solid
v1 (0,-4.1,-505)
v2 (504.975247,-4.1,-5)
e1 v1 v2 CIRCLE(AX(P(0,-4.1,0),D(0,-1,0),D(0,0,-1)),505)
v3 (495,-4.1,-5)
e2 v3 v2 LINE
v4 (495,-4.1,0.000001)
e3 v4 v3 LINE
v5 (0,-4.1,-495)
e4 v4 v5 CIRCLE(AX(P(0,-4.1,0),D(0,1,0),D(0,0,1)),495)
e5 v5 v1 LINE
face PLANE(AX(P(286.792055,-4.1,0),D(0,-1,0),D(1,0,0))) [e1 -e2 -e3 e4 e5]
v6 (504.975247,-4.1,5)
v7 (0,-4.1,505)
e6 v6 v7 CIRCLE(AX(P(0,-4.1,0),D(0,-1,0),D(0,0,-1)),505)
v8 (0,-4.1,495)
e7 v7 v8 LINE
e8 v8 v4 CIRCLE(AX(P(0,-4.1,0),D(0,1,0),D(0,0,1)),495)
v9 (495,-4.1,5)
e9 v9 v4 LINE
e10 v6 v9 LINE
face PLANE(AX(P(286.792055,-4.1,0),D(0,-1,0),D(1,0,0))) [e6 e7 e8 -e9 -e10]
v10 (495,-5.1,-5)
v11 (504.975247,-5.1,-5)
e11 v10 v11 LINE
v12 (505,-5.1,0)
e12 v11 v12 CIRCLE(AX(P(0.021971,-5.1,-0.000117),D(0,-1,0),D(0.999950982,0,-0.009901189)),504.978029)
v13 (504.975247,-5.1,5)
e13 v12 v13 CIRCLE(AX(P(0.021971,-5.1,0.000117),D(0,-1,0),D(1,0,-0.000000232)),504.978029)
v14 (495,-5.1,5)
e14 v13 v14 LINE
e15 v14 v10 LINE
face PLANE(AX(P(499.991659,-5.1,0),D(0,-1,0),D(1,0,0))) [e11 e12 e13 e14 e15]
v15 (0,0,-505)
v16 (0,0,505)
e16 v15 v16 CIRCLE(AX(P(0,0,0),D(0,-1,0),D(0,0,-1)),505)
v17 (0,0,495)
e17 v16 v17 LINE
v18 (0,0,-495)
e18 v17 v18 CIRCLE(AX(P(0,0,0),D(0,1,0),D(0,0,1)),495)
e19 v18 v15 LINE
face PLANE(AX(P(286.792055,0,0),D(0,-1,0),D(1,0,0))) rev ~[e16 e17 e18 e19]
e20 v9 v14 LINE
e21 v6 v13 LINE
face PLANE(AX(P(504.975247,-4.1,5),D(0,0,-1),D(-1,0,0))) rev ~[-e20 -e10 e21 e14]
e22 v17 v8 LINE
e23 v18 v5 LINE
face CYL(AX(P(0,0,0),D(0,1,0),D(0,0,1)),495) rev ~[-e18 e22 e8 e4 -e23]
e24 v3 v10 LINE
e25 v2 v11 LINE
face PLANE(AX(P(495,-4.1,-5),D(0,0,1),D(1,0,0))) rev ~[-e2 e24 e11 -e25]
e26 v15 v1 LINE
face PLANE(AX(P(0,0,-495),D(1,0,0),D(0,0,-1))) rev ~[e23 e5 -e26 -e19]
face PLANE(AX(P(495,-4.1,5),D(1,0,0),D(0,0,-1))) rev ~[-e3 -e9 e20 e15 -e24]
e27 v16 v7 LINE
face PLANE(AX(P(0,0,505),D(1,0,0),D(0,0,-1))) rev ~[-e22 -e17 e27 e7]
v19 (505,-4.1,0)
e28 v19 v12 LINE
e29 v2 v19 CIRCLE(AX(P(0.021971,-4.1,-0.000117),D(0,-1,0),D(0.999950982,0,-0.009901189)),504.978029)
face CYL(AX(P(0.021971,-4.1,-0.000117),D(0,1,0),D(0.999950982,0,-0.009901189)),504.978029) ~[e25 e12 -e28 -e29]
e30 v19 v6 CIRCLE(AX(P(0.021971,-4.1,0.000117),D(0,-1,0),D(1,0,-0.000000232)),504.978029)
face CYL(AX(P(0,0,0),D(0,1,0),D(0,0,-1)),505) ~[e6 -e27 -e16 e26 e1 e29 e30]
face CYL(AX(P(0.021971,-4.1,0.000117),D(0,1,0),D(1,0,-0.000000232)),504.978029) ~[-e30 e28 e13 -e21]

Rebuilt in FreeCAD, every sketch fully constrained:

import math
import FreeCAD as App
import Part
import Sketcher

doc = App.newDocument("Part")
body = doc.addObject("PartDesign::Body", "Body")

# Sketch on XZ plane
sketch1 = doc.addObject("Sketcher::SketchObject", "Sketch")
body.addObject(sketch1)
sketch1.AttachmentSupport = (doc.XZ_Plane, [""])
sketch1.MapMode = "FlatFace"
sketch1.addGeometry(Part.ArcOfCircle(Part.Circle(App.Vector(0, 0, 0), App.Vector(0, 0, 1), 495), math.radians(-90), math.radians(90)), False)
sketch1.addGeometry(Part.LineSegment(App.Vector(0, -495, 0), App.Vector(0, -505, 0)), False)
sketch1.addGeometry(Part.ArcOfCircle(Part.Circle(App.Vector(0, 0, 0), App.Vector(0, 0, 1), 505), math.radians(-90), math.radians(90)), False)
sketch1.addGeometry(Part.LineSegment(App.Vector(0, 505, 0), App.Vector(0, 495, 0)), False)
sketch1.addConstraint(Sketcher.Constraint("Coincident", 0, 1, 1, 1))
sketch1.addConstraint(Sketcher.Constraint("Coincident", 1, 2, 2, 1))
sketch1.addConstraint(Sketcher.Constraint("Coincident", 2, 2, 3, 1))
sketch1.addConstraint(Sketcher.Constraint("Coincident", 3, 2, 0, 2))
sketch1.addConstraint(Sketcher.Constraint("Vertical", 1))
sketch1.addConstraint(Sketcher.Constraint("Vertical", 3))
sketch1.addConstraint(Sketcher.Constraint("Coincident", 0, 3, -1, 1))
sketch1.addConstraint(Sketcher.Constraint("Coincident", 2, 3, -1, 1))
sketch1.addConstraint(Sketcher.Constraint("PointOnObject", 1, 2, -2))
sketch1.addConstraint(Sketcher.Constraint("PointOnObject", 3, 2, -2))
sketch1.addConstraint(Sketcher.Constraint("Radius", 0, 495.0))
sketch1.addConstraint(Sketcher.Constraint("Radius", 2, 505.0))
pad1 = doc.addObject("PartDesign::Pad", "Pad")
body.addObject(pad1)
pad1.Profile = sketch1
pad1.Length = 4.1

# Sketch on XZ plane
sketch2 = doc.addObject("Sketcher::SketchObject", "Sketch001")
body.addObject(sketch2)
sketch2.AttachmentSupport = (doc.XZ_Plane, [""])
sketch2.MapMode = "FlatFace"
sketch2.AttachmentOffset = App.Placement(App.Vector(0, 0, 4.1), App.Rotation())
sketch2.addGeometry(Part.LineSegment(App.Vector(505, 5, 0), App.Vector(495, 5, 0)), False)
sketch2.addGeometry(Part.LineSegment(App.Vector(495, 5, 0), App.Vector(495, -5, 0)), False)
sketch2.addGeometry(Part.LineSegment(App.Vector(495, -5, 0), App.Vector(505, -5, 0)), False)
sketch2.addGeometry(Part.ArcOfCircle(Part.Circle(App.Vector(0, 0, 0), App.Vector(0, 0, 1), 505), math.radians(-0.57), math.radians(0)), False)
sketch2.addGeometry(Part.ArcOfCircle(Part.Circle(App.Vector(0, 0, 0), App.Vector(0, 0, 1), 505), math.radians(0), math.radians(0.57)), False)
sketch2.addConstraint(Sketcher.Constraint("Coincident", 0, 2, 1, 1))
sketch2.addConstraint(Sketcher.Constraint("Coincident", 1, 2, 2, 1))
sketch2.addConstraint(Sketcher.Constraint("Coincident", 2, 2, 3, 1))
sketch2.addConstraint(Sketcher.Constraint("Coincident", 3, 2, 4, 1))
sketch2.addConstraint(Sketcher.Constraint("Coincident", 4, 2, 0, 1))
sketch2.addConstraint(Sketcher.Constraint("Horizontal", 0))
sketch2.addConstraint(Sketcher.Constraint("Vertical", 1))
sketch2.addConstraint(Sketcher.Constraint("Horizontal", 2))
sketch2.addConstraint(Sketcher.Constraint("Equal", 3, 4))
sketch2.addConstraint(Sketcher.Constraint("PointOnObject", 3, 2, -1))
sketch2.addConstraint(Sketcher.Constraint("Vertical", 2, 2, 4, 2))
sketch2.addConstraint(Sketcher.Constraint("DistanceY", 1, 2, 1, 1, 10.0))
sketch2.addConstraint(Sketcher.Constraint("DistanceX", -1, 1, 0, 2, 495.0))
sketch2.addConstraint(Sketcher.Constraint("DistanceY", -1, 1, 0, 2, 5.0))
sketch2.addConstraint(Sketcher.Constraint("DistanceX", -1, 1, 3, 2, 505.0))
sketch2.addConstraint(Sketcher.Constraint("Radius", 3, 504.978029))
sketch2.addConstraint(Sketcher.Constraint("DistanceX", 0, 2, 0, 1, 9.975247))
pad2 = doc.addObject("PartDesign::Pad", "Pad001")
body.addObject(pad2)
pad2.Profile = sketch2
pad2.Length = 1

doc.recompute()
